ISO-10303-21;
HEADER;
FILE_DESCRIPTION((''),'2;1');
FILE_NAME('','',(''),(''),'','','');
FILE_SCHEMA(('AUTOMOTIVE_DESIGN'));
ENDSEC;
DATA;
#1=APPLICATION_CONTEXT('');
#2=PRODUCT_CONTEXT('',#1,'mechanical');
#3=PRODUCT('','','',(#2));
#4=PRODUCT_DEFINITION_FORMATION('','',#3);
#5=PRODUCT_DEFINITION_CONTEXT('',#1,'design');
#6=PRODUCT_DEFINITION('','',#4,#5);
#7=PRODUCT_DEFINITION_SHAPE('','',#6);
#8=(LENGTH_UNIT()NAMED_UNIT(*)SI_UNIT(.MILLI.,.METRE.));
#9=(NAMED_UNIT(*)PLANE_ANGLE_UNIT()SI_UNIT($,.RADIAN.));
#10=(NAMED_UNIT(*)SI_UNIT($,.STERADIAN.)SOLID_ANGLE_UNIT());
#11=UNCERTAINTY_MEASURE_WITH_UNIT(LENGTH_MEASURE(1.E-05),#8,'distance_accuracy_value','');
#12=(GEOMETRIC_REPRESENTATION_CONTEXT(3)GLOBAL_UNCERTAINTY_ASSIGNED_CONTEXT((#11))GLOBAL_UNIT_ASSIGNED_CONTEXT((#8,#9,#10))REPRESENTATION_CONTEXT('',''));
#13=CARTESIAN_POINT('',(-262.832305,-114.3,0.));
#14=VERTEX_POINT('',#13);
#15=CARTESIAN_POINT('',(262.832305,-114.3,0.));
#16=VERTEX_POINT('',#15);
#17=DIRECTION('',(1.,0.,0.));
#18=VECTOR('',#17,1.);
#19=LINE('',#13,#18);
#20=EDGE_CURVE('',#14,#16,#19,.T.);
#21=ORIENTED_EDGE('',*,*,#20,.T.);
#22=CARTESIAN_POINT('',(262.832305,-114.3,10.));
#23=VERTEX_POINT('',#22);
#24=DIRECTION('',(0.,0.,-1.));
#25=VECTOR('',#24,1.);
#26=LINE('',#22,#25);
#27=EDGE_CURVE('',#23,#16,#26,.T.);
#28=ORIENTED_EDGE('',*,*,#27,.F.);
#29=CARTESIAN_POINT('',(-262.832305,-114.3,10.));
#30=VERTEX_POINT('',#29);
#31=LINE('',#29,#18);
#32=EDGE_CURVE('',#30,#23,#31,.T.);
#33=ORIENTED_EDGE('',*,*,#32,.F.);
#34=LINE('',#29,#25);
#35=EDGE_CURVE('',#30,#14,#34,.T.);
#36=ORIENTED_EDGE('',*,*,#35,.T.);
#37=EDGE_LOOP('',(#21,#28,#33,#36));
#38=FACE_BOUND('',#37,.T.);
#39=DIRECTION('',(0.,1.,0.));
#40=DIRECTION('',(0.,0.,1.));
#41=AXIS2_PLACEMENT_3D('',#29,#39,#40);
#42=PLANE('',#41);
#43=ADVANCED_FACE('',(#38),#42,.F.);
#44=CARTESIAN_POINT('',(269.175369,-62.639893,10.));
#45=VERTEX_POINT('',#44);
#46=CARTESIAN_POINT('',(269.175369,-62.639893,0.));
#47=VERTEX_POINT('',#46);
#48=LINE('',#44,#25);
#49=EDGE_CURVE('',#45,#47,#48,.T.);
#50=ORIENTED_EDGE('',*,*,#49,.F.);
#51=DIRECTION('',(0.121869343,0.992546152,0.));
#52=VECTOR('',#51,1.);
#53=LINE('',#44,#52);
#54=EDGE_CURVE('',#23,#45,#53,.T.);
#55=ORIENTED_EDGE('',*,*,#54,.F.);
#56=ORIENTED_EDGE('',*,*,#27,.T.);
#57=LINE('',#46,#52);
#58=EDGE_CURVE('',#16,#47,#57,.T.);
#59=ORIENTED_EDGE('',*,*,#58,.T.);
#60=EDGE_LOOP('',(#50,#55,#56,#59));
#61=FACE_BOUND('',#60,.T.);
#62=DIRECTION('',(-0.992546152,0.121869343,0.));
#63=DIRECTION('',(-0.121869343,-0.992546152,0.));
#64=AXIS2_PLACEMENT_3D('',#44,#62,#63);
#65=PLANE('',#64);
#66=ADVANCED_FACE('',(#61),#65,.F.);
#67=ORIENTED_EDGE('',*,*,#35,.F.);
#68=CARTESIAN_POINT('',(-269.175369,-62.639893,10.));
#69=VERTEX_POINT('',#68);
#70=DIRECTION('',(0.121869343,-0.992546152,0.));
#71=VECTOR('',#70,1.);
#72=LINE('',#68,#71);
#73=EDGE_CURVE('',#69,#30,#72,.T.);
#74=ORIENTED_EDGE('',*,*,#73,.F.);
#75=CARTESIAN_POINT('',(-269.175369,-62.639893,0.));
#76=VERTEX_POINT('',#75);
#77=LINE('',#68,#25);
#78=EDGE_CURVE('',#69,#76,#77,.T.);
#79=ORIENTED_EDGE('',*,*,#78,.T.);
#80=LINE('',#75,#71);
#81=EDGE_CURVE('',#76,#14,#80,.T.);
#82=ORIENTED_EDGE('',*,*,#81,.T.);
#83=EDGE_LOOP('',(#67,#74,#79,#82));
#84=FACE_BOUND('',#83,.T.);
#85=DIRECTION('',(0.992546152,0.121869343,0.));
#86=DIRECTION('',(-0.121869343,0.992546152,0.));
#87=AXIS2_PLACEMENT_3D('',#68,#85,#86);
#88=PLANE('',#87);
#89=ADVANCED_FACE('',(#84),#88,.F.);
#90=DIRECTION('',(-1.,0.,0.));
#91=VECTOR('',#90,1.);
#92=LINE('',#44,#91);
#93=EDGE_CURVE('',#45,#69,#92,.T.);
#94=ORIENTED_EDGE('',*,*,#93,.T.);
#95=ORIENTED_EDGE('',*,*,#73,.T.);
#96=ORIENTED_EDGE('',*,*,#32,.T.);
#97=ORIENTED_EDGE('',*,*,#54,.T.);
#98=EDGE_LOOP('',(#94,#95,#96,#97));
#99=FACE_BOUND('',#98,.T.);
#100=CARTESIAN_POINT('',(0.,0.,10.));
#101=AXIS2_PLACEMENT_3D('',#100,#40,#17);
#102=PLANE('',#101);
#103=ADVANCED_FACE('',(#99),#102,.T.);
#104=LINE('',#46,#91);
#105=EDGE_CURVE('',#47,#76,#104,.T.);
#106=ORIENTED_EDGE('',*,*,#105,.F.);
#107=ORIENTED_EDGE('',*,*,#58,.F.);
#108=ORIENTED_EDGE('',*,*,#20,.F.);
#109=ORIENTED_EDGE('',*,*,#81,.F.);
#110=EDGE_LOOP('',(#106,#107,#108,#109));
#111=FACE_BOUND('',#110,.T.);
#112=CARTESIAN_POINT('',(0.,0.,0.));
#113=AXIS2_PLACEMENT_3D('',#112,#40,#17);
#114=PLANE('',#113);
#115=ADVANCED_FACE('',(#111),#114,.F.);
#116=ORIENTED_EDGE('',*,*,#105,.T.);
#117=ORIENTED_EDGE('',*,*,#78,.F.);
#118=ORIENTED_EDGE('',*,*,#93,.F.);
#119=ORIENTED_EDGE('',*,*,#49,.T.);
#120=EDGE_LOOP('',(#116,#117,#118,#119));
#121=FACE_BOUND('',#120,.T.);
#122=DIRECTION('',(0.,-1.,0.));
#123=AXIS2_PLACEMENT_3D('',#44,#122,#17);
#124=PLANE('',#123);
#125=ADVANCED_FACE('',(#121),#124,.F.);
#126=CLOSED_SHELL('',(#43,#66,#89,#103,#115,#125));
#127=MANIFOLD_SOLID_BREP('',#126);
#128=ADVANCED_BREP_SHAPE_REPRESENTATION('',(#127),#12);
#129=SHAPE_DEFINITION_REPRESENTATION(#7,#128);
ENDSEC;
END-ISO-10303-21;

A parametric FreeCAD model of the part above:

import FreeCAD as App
import Part
import Sketcher
Q = App.Units.Quantity


def add_polygon(sketch, points):
    """Adds a closed chain of lines whose ends are joined by coincident constraints."""
    first, n = sketch.GeometryCount, len(points)
    for a, b in zip(points, points[1:] + points[:1]):
        sketch.addGeometry(Part.LineSegment(App.Vector(*a, 0), App.Vector(*b, 0)), False)
    for i in range(n):
        sketch.addConstraint(Sketcher.Constraint("Coincident", first + i, 2, first + (i + 1) % n, 1))

doc = App.newDocument("Part")
body = doc.addObject("PartDesign::Body", "Body")

# Sketch on XY plane
sketch1 = body.newObject("Sketcher::SketchObject", "Sketch")
sketch1.AttachmentSupport = (doc.getObject("XY_Plane"), [""])
sketch1.MapMode = "FlatFace"
add_polygon(sketch1, [(-269, -63), (-263, -114), (263, -114), (269, -63)])  # lines 0-3
sketch1.addConstraint(Sketcher.Constraint("Horizontal", 1))
sketch1.addConstraint(Sketcher.Constraint("Horizontal", 3))
sketch1.addConstraint(Sketcher.Constraint("Equal", 0, 2))
sketch1.addConstraint(Sketcher.Constraint("Angle", 0, Q("-83 deg")))
sketch1.addConstraint(Sketcher.Constraint("DistanceY", 0, 2, -1, 1, 114.3))
sketch1.addConstraint(Sketcher.Constraint("DistanceX", 1, 1, 1, 2, 525.66461))
sketch1.addConstraint(Sketcher.Constraint("DistanceX", 3, 2, 3, 1, 538.350737))
sketch1.addConstraint(Sketcher.Constraint("DistanceX", -1, 1, 2, 2, 269.175369))
pad1 = body.newObject("PartDesign::Pad", "Pad")
pad1.Profile = sketch1
pad1.Length = 10

doc.recompute()
